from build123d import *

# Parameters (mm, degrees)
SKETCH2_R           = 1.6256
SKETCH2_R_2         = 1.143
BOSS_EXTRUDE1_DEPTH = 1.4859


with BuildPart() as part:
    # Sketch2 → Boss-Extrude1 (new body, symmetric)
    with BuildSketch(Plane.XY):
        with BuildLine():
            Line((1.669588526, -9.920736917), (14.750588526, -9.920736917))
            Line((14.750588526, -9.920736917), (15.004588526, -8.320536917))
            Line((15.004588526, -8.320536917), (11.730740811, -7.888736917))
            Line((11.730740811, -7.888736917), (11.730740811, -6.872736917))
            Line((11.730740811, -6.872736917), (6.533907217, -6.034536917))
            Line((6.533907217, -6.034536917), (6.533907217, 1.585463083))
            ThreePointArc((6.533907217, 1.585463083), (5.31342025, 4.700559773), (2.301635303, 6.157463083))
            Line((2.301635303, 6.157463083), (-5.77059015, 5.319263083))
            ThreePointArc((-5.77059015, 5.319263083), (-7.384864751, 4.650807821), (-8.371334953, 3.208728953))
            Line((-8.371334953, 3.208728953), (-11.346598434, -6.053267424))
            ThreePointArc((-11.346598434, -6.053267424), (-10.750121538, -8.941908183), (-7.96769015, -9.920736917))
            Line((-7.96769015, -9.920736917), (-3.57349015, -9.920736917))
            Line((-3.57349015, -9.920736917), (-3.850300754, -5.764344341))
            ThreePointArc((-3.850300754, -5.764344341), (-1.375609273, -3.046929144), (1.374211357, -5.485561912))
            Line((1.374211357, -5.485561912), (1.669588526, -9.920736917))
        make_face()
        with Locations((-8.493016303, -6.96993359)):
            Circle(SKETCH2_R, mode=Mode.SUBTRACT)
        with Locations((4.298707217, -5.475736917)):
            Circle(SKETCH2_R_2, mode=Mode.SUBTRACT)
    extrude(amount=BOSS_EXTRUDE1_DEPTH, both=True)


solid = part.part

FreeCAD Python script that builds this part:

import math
import FreeCAD as App
import Part
import Sketcher
from FreeCAD import Vector
Q = App.Units.Quantity

doc = App.newDocument("Part")
body = doc.addObject("PartDesign::Body", "Body")

sketch1 = body.newObject("Sketcher::SketchObject", "Sketch")
sketch1.AttachmentSupport = (doc.getObject("XY_Plane"), [""])
sketch1.MapMode = "FlatFace"
sketch1.addGeometry([
    Part.LineSegment(Vector(1.7, -9.9, 0), Vector(14.8, -9.9, 0)),
    Part.LineSegment(Vector(14.8, -9.9, 0), Vector(15, -8.3, 0)),
    Part.LineSegment(Vector(15, -8.3, 0), Vector(11.7, -7.9, 0)),
    Part.LineSegment(Vector(11.7, -7.9, 0), Vector(11.7, -6.9, 0)),
    Part.LineSegment(Vector(11.7, -6.9, 0), Vector(6.5, -6, 0)),
    Part.LineSegment(Vector(6.5, -6, 0), Vector(6.5, 1.6, 0)),
    Part.ArcOfCircle(Part.Circle(Vector(1.9, 1.6, 0), Vector(0, 0, 1), 4.6), math.radians(0), math.radians(86)),
    Part.LineSegment(Vector(2.3, 6.2, 0), Vector(-5.8, 5.3, 0)),
    Part.ArcOfCircle(Part.Circle(Vector(-5.5, 2.3, 0), Vector(0, 0, 1), 3.1), math.radians(96), math.radians(162)),
    Part.LineSegment(Vector(-8.4, 3.2, 0), Vector(-11.3, -6.1, 0)),
    Part.ArcOfCircle(Part.Circle(Vector(-8.5, -7, 0), Vector(0, 0, 1), 3), math.radians(162), math.radians(280)),
    Part.LineSegment(Vector(-8, -9.9, 0), Vector(-3.6, -9.9, 0)),
    Part.LineSegment(Vector(-3.6, -9.9, 0), Vector(-3.9, -5.8, 0)),
    Part.ArcOfCircle(Part.Circle(Vector(-1.2, -5.7, 0), Vector(0, 0, 1), 2.6), math.radians(4), math.radians(182)),
    Part.LineSegment(Vector(1.4, -5.5, 0), Vector(1.7, -9.9, 0)),
    Part.Circle(Vector(-8.5, -7, 0), Vector(0, 0, 1), 1.6),
    Part.Circle(Vector(4.3, -5.5, 0), Vector(0, 0, 1), 1.1),
], False)
sketch1.addConstraint([
    Sketcher.Constraint("Coincident", 0, 2, 1, 1),
    Sketcher.Constraint("Coincident", 1, 2, 2, 1),
    Sketcher.Constraint("Coincident", 2, 2, 3, 1),
    Sketcher.Constraint("Coincident", 3, 2, 4, 1),
    Sketcher.Constraint("Coincident", 4, 2, 5, 1),
    Sketcher.Constraint("Tangent", 5, 2, 6, 1),
    Sketcher.Constraint("Coincident", 6, 2, 7, 1),
    Sketcher.Constraint("Tangent", 7, 2, 8, 1),
    Sketcher.Constraint("Tangent", 8, 2, 9, 1),
    Sketcher.Constraint("Tangent", 9, 2, 10, 1),
    Sketcher.Constraint("Coincident", 10, 2, 11, 1),
    Sketcher.Constraint("Coincident", 11, 2, 12, 1),
    Sketcher.Constraint("Coincident", 12, 2, 13, 2),
    Sketcher.Constraint("Tangent", 13, 1, 14, 1),
    Sketcher.Constraint("Coincident", 14, 2, 0, 1),
    Sketcher.Constraint("Horizontal", 0),
    Sketcher.Constraint("Vertical", 3),
    Sketcher.Constraint("Vertical", 5),
    Sketcher.Constraint("Horizontal", 11),
    Sketcher.Constraint("Coincident", 15, 3, 10, 3),
    Sketcher.Constraint("Parallel", 12, 14),
    Sketcher.Constraint("Horizontal", 0, 2, 10, 2),
    Sketcher.Constraint("Diameter", 16, Q("0.09 in")),
    Sketcher.Constraint("Diameter", 15, Q("0.128 in")),
    Sketcher.Constraint("DistanceY", 5, 1, 5, 2, Q("0.3 in")),
    Sketcher.Constraint("Radius", 10, Q("0.118 in")),
    Sketcher.Constraint("Radius", 13, Q("0.103 in")),
    Sketcher.Constraint("DistanceY", 3, 1, 3, 2, Q("0.04 in")),
    Sketcher.Constraint("DistanceX", 0, 1, 0, 2, Q("0.515 in")),
    Sketcher.Constraint("DistanceX", 11, 1, 11, 2, Q("0.173 in")),
    Sketcher.Constraint("DistanceX", 0, 2, 1, 2, Q("0.01 in")),
    Sketcher.Constraint("DistanceY", 1, 2, 6, 3, Q("0.39 in")),
    Sketcher.Constraint("DistanceY", 0, 2, 2, 2, Q("0.08 in")),
    Sketcher.Constraint("DistanceY", 6, 3, 6, 2, Q("0.18 in")),
    Sketcher.Constraint("Distance", 12, Q("0.164 in")),
    Sketcher.Constraint("Distance", 14, Q("0.175 in")),
    Sketcher.Constraint("DistanceY", 16, 3, 6, 3, Q("0.278 in")),
    Sketcher.Constraint("DistanceY", 0, 2, 16, 3, Q("0.175 in")),
    Sketcher.Constraint("DistanceX", 16, 3, 4, 2, Q("0.088 in")),
    Sketcher.Constraint("DistanceY", 7, 2, 6, 2, Q("0.033 in")),
    Sketcher.Constraint("Radius", 6, Q("4.585635 mm")),
    Sketcher.Constraint("Radius", 8, Q("3.064024 mm")),
    Sketcher.Constraint("Distance", 2, Q("3.302201 mm")),
    Sketcher.Constraint("DistanceX", 9, 2, -1, 1, Q("11.346598 mm")),
    Sketcher.Constraint("DistanceX", 12, 2, -1, 1, Q("3.850301 mm")),
    Sketcher.Constraint("DistanceX", 11, 2, 13, 1, Q("4.947702 mm")),
    Sketcher.Constraint("DistanceX", 8, 3, -1, 1, Q("5.454131 mm")),
    Sketcher.Constraint("DistanceX", 7, 2, -1, 1, Q("5.77059 mm")),
    Sketcher.Constraint("DistanceY", -1, 1, 8, 2, Q("3.208729 mm")),
])
pad1 = body.newObject("PartDesign::Pad", "Pad")
pad1.Profile = sketch1
pad1.Length = Q("0.117 in")
pad1.Midplane = True

doc.recompute()
